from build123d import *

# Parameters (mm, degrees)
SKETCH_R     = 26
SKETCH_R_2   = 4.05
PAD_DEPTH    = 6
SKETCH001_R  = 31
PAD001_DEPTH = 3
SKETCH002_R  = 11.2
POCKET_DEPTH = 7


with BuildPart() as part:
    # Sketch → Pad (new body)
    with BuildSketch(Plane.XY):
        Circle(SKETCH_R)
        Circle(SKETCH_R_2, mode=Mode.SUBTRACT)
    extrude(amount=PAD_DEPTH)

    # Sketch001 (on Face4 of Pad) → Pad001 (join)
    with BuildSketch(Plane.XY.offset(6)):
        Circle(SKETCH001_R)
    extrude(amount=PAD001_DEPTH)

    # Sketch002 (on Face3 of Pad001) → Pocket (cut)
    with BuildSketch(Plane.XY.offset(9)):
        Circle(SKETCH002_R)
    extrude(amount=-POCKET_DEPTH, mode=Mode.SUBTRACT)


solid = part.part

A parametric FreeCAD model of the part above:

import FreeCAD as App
import Part
import Sketcher
Q = App.Units.Quantity

doc = App.newDocument("Part")
body = doc.addObject("PartDesign::Body", "Body")

# Sketch on XY plane
sketch1 = body.newObject("Sketcher::SketchObject", "Sketch")
sketch1.AttachmentSupport = (doc.getObject("XY_Plane"), [""])
sketch1.MapMode = "FlatFace"
sketch1.addGeometry([
    Part.Circle(App.Vector(0, 0, 0), App.Vector(0, 0, 1), 26),
    Part.Circle(App.Vector(0, 0, 0), App.Vector(0, 0, 1), 4),
], False)
sketch1.addConstraint([
    Sketcher.Constraint("Coincident", 0, 3, -1, 1),
    Sketcher.Constraint("Coincident", 1, 3, -1, 1),
    Sketcher.Constraint("Diameter", 0, Q("52 mm")),
    Sketcher.Constraint("Diameter", 1, Q("8.1 mm")),
])
pad1 = body.newObject("PartDesign::Pad", "Pad")
pad1.Profile = sketch1
pad1.Length = 6

# Sketch on XY plane
sketch2 = body.newObject("Sketcher::SketchObject", "Sketch001")
sketch2.AttachmentSupport = (doc.getObject("XY_Plane"), [""])
sketch2.MapMode = "FlatFace"
sketch2.AttachmentOffset = App.Placement(App.Vector(0, 0, 6), App.Rotation())
sketch2.addGeometry(Part.Circle(App.Vector(0, 0, 0), App.Vector(0, 0, 1), 31), False)
sketch2.addConstraint([
    Sketcher.Constraint("Coincident", 0, 3, -1, 1),
    Sketcher.Constraint("Diameter", 0, Q("62 mm")),
])
pad2 = body.newObject("PartDesign::Pad", "Pad001")
pad2.Profile = sketch2
pad2.Length = 3

# Sketch on XY plane
sketch3 = body.newObject("Sketcher::SketchObject", "Sketch002")
sketch3.AttachmentSupport = (doc.getObject("XY_Plane"), [""])
sketch3.MapMode = "FlatFace"
sketch3.AttachmentOffset = App.Placement(App.Vector(0, 0, 9), App.Rotation())
sketch3.addGeometry(Part.Circle(App.Vector(0, 0, 0), App.Vector(0, 0, 1), 11), False)
sketch3.addConstraint([
    Sketcher.Constraint("Coincident", 0, 3, -1, 1),
    Sketcher.Constraint("Diameter", 0, Q("22.4 mm")),
])
pocket1 = body.newObject("PartDesign::Pocket", "Pocket")
pocket1.Profile = sketch3
pocket1.Length = 7

doc.recompute()
